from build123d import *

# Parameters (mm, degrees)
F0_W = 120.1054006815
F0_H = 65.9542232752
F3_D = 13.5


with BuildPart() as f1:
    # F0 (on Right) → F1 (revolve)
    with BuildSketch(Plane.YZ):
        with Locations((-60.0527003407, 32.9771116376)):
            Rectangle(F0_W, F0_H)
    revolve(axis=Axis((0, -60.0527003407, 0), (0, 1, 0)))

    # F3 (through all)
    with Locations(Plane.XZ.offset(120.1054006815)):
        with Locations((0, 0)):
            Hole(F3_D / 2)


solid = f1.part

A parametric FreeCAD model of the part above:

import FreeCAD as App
import Part
import Sketcher
from FreeCAD import Vector
Q = App.Units.Quantity

doc = App.newDocument("Part")
body = doc.addObject("PartDesign::Body", "Body")

sketch1 = body.newObject("Sketcher::SketchObject", "Sketch")
sketch1.AttachmentSupport = (doc.getObject("YZ_Plane"), [""])
sketch1.MapMode = "FlatFace"
sketch1.addGeometry([
    Part.LineSegment(Vector(-120, 66, 0), Vector(-120, 0, 0)),
    Part.LineSegment(Vector(-120, 0, 0), Vector(0, 0, 0)),
    Part.LineSegment(Vector(0, 0, 0), Vector(0, 66, 0)),
    Part.LineSegment(Vector(0, 66, 0), Vector(-120, 66, 0)),
], False)
sketch1.addConstraint([
    Sketcher.Constraint("Coincident", 0, 2, 1, 1),
    Sketcher.Constraint("Coincident", 1, 2, 2, 1),
    Sketcher.Constraint("Coincident", 2, 2, 3, 1),
    Sketcher.Constraint("Coincident", 3, 2, 0, 1),
    Sketcher.Constraint("Vertical", 0),
    Sketcher.Constraint("Horizontal", 1),
    Sketcher.Constraint("Vertical", 2),
    Sketcher.Constraint("Horizontal", 3),
    Sketcher.Constraint("Coincident", 1, 2, -1, 1),
    Sketcher.Constraint("DistanceX", 1, 1, 1, 2, Q("120.105401 mm")),
    Sketcher.Constraint("DistanceY", 0, 2, 0, 1, Q("65.954223 mm")),
])
revolution = body.newObject("PartDesign::Revolution", "Revolution")
revolution.Profile = sketch1
revolution.ReferenceAxis = (sketch1, ["H_Axis"])
revolution.Angle = 360

sketch2 = body.newObject("Sketcher::SketchObject", "Sketch001")
sketch2.AttachmentSupport = (doc.getObject("XZ_Plane"), [""])
sketch2.MapMode = "FlatFace"
sketch2.AttachmentOffset = App.Placement(Vector(0, 0, 120.105401), App.Rotation())
sketch2.addGeometry(Part.Circle(Vector(0, 0, 0), Vector(0, 0, 1), 7), False)
sketch2.addConstraint([
    Sketcher.Constraint("Coincident", 0, 3, -1, 1),
    Sketcher.Constraint("Diameter", 0, Q("13.5 mm")),
])
doc.recompute()
hole = body.newObject("PartDesign::Hole", "Hole")
hole.Profile = sketch2
hole.ThreadType = "None"
hole.Diameter = 13.5
hole.DepthType = "ThroughAll"

doc.recompute()
